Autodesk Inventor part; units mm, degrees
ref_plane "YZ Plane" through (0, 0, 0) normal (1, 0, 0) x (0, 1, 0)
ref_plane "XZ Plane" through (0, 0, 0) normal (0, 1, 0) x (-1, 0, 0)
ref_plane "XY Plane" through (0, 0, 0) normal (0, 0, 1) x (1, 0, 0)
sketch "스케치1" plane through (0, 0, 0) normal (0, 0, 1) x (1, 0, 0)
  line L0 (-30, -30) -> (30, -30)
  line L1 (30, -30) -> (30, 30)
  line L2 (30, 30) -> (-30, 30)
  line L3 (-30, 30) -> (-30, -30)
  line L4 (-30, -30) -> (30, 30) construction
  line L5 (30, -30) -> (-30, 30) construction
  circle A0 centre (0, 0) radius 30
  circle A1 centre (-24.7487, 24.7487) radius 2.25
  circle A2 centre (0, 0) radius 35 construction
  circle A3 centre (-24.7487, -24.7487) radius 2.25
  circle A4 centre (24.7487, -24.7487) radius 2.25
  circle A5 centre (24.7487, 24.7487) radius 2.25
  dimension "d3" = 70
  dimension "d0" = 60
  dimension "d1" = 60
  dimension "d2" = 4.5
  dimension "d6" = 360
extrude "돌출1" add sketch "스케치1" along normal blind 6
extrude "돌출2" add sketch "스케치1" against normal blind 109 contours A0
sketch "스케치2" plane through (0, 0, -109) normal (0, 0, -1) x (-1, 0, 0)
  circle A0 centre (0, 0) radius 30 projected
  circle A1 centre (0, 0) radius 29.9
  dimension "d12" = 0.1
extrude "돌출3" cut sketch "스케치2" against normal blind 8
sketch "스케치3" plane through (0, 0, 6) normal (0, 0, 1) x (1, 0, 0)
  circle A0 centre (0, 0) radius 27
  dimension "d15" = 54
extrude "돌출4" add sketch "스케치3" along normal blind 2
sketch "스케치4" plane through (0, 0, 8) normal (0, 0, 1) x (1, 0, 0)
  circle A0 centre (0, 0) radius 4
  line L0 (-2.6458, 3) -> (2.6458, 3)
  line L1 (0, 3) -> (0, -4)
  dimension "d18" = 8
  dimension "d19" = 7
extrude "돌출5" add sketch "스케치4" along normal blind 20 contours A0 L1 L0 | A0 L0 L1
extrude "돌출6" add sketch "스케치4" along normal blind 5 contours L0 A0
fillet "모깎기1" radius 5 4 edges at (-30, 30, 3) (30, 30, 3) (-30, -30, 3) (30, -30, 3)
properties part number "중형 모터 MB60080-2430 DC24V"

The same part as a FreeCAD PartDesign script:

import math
import FreeCAD as App
import Part
import Sketcher
from FreeCAD import Vector
Q = App.Units.Quantity


def edges_at(feature, points):
    """Names of the edges that pass closest to the given points."""
    edges = feature.Shape.Edges
    near = lambda p: min(range(len(edges)), key=lambda i: edges[i].distToShape(Part.Vertex(*p))[0])
    return sorted({f"Edge{near(p) + 1}" for p in points})


def add_polygon(sketch, points):
    """Adds a closed chain of lines whose ends are joined by coincident constraints."""
    first, n = sketch.GeometryCount, len(points)
    for a, b in zip(points, points[1:] + points[:1]):
        sketch.addGeometry(Part.LineSegment(App.Vector(*a, 0), App.Vector(*b, 0)), False)
    for i in range(n):
        sketch.addConstraint(Sketcher.Constraint("Coincident", first + i, 2, first + (i + 1) % n, 1))

doc = App.newDocument("Part")
body = doc.addObject("PartDesign::Body", "Body")

sketch1 = body.newObject("Sketcher::SketchObject", "Sketch")
sketch1.AttachmentSupport = (doc.getObject("XY_Plane"), [""])
sketch1.MapMode = "FlatFace"
add_polygon(sketch1, [(-30, -30), (30, -30), (30, 30), (-30, 30)])
sketch1.addGeometry(Part.Circle(Vector(-24.7, -24.7, 0), Vector(0, 0, 1), 2.2), False)
sketch1.addGeometry(Part.Circle(Vector(24.7, -24.7, 0), Vector(0, 0, 1), 2.2), False)
sketch1.addGeometry(Part.Circle(Vector(-24.7, 24.7, 0), Vector(0, 0, 1), 2.2), False)
sketch1.addGeometry(Part.Circle(Vector(24.7, 24.7, 0), Vector(0, 0, 1), 2.2), False)
sketch1.addConstraint(Sketcher.Constraint("Horizontal", 0))
sketch1.addConstraint(Sketcher.Constraint("Vertical", 1))
sketch1.addConstraint(Sketcher.Constraint("Horizontal", 2))
sketch1.addConstraint(Sketcher.Constraint("Vertical", 3))
sketch1.addConstraint(Sketcher.Constraint("Equal", 4, 5))
sketch1.addConstraint(Sketcher.Constraint("Equal", 5, 6))
sketch1.addConstraint(Sketcher.Constraint("Equal", 6, 7))
sketch1.addConstraint(Sketcher.Constraint("Symmetric", 5, 3, 6, 3, -1, 1))
sketch1.addConstraint(Sketcher.Constraint("Symmetric", 4, 3, 7, 3, -1, 1))
sketch1.addConstraint(Sketcher.Constraint("Symmetric", 0, 2, 2, 2, -1, 1))
sketch1.addConstraint(Sketcher.Constraint("Symmetric", 4, 3, 5, 3, -2))
sketch1.addConstraint(Sketcher.Constraint("Equal", 2, 1))
sketch1.addConstraint(Sketcher.Constraint("Diameter", 4, Q("4.5 mm")))
sketch1.addConstraint(Sketcher.Constraint("DistanceX", 0, 1, 0, 2, Q("60 mm")))
sketch1.addConstraint(Sketcher.Constraint("DistanceX", 4, 3, -1, 1, Q("24.7487 mm")))
sketch1.addConstraint(Sketcher.Constraint("DistanceY", 4, 3, -1, 1, Q("24.7487 mm")))
pad1 = body.newObject("PartDesign::Pad", "Pad")
pad1.Profile = sketch1
pad1.Length = 6

sketch2 = body.newObject("Sketcher::SketchObject", "Sketch001")
sketch2.AttachmentSupport = (doc.getObject("XY_Plane"), [""])
sketch2.MapMode = "FlatFace"
sketch2.addGeometry(Part.Circle(Vector(0, 0, 0), Vector(0, 0, 1), 30), False)
sketch2.addConstraint(Sketcher.Constraint("Coincident", 0, 3, -1, 1))
sketch2.addConstraint(Sketcher.Constraint("Diameter", 0, Q("60 mm")))
pad2 = body.newObject("PartDesign::Pad", "Pad001")
pad2.Profile = sketch2
pad2.Length = 109
pad2.Reversed = True

sketch3 = body.newObject("Sketcher::SketchObject", "Sketch002")
sketch3.AttachmentSupport = (doc.getObject("XY_Plane"), [""])
sketch3.MapMode = "FlatFace"
sketch3.AttachmentOffset = App.Placement(Vector(0, 0, -109), App.Rotation())
sketch3.addGeometry(Part.Circle(Vector(0, 0, 0), Vector(0, 0, 1), 30), False)
sketch3.addGeometry(Part.Circle(Vector(0, 0, 0), Vector(0, 0, 1), 30), False)
sketch3.addConstraint(Sketcher.Constraint("Coincident", 0, 3, -1, 1))
sketch3.addConstraint(Sketcher.Constraint("Coincident", 1, 3, -1, 1))
sketch3.addConstraint(Sketcher.Constraint("Diameter", 0, Q("60 mm")))
sketch3.addConstraint(Sketcher.Constraint("Diameter", 1, Q("59.8 mm")))
pocket1 = body.newObject("PartDesign::Pocket", "Pocket")
pocket1.Profile = sketch3
pocket1.Length = 8
pocket1.Reversed = True

sketch4 = body.newObject("Sketcher::SketchObject", "Sketch003")
sketch4.AttachmentSupport = (doc.getObject("XY_Plane"), [""])
sketch4.MapMode = "FlatFace"
sketch4.AttachmentOffset = App.Placement(Vector(0, 0, 6), App.Rotation())
sketch4.addGeometry(Part.Circle(Vector(0, 0, 0), Vector(0, 0, 1), 27), False)
sketch4.addConstraint(Sketcher.Constraint("Coincident", 0, 3, -1, 1))
sketch4.addConstraint(Sketcher.Constraint("Diameter", 0, Q("54 mm")))
pad3 = body.newObject("PartDesign::Pad", "Pad002")
pad3.Profile = sketch4
pad3.Length = 2

sketch5 = body.newObject("Sketcher::SketchObject", "Sketch004")
sketch5.AttachmentSupport = (doc.getObject("XY_Plane"), [""])
sketch5.MapMode = "FlatFace"
sketch5.AttachmentOffset = App.Placement(Vector(0, 0, 8), App.Rotation())
sketch5.addGeometry(Part.LineSegment(Vector(2.6, 3, 0), Vector(-2.6, 3, 0)), False)
sketch5.addGeometry(Part.ArcOfCircle(Part.Circle(Vector(0, 0, 0), Vector(0, 0, 1), 4), math.radians(131), math.radians(409)), False)
sketch5.addConstraint(Sketcher.Constraint("Coincident", 0, 1, 1, 2))
sketch5.addConstraint(Sketcher.Constraint("Coincident", 1, 1, 0, 2))
sketch5.addConstraint(Sketcher.Constraint("Horizontal", 0))
sketch5.addConstraint(Sketcher.Constraint("Coincident", 1, 3, -1, 1))
sketch5.addConstraint(Sketcher.Constraint("Radius", 1, Q("4 mm")))
sketch5.addConstraint(Sketcher.Constraint("DistanceY", -1, 1, 0, 1, Q("3 mm")))
pad4 = body.newObject("PartDesign::Pad", "Pad003")
pad4.Profile = sketch5
pad4.Length = 20

sketch6 = body.newObject("Sketcher::SketchObject", "Sketch005")
sketch6.AttachmentSupport = (doc.getObject("XY_Plane"), [""])
sketch6.MapMode = "FlatFace"
sketch6.AttachmentOffset = App.Placement(Vector(0, 0, 8), App.Rotation())
sketch6.addGeometry(Part.LineSegment(Vector(-2.6, 3, 0), Vector(2.6, 3, 0)), False)
sketch6.addGeometry(Part.ArcOfCircle(Part.Circle(Vector(0, 0, 0), Vector(0, 0, 1), 4), math.radians(49), math.radians(131)), False)
sketch6.addConstraint(Sketcher.Constraint("Coincident", 0, 1, 1, 2))
sketch6.addConstraint(Sketcher.Constraint("Coincident", 1, 1, 0, 2))
sketch6.addConstraint(Sketcher.Constraint("Horizontal", 0))
sketch6.addConstraint(Sketcher.Constraint("Coincident", 1, 3, -1, 1))
sketch6.addConstraint(Sketcher.Constraint("Radius", 1, Q("4 mm")))
sketch6.addConstraint(Sketcher.Constraint("DistanceY", -1, 1, 0, 1, Q("3 mm")))
pad5 = body.newObject("PartDesign::Pad", "Pad004")
pad5.Profile = sketch6
pad5.Length = 5
doc.recompute()

fillet = body.newObject("PartDesign::Fillet", "Fillet")
fillet.Base = (pad5, edges_at(pad5, [
    (-30, 30, 3),
    (30, 30, 3),
    (-30, -30, 3),
    (30, -30, 3),
]))
fillet.Radius = 5

doc.recompute()
